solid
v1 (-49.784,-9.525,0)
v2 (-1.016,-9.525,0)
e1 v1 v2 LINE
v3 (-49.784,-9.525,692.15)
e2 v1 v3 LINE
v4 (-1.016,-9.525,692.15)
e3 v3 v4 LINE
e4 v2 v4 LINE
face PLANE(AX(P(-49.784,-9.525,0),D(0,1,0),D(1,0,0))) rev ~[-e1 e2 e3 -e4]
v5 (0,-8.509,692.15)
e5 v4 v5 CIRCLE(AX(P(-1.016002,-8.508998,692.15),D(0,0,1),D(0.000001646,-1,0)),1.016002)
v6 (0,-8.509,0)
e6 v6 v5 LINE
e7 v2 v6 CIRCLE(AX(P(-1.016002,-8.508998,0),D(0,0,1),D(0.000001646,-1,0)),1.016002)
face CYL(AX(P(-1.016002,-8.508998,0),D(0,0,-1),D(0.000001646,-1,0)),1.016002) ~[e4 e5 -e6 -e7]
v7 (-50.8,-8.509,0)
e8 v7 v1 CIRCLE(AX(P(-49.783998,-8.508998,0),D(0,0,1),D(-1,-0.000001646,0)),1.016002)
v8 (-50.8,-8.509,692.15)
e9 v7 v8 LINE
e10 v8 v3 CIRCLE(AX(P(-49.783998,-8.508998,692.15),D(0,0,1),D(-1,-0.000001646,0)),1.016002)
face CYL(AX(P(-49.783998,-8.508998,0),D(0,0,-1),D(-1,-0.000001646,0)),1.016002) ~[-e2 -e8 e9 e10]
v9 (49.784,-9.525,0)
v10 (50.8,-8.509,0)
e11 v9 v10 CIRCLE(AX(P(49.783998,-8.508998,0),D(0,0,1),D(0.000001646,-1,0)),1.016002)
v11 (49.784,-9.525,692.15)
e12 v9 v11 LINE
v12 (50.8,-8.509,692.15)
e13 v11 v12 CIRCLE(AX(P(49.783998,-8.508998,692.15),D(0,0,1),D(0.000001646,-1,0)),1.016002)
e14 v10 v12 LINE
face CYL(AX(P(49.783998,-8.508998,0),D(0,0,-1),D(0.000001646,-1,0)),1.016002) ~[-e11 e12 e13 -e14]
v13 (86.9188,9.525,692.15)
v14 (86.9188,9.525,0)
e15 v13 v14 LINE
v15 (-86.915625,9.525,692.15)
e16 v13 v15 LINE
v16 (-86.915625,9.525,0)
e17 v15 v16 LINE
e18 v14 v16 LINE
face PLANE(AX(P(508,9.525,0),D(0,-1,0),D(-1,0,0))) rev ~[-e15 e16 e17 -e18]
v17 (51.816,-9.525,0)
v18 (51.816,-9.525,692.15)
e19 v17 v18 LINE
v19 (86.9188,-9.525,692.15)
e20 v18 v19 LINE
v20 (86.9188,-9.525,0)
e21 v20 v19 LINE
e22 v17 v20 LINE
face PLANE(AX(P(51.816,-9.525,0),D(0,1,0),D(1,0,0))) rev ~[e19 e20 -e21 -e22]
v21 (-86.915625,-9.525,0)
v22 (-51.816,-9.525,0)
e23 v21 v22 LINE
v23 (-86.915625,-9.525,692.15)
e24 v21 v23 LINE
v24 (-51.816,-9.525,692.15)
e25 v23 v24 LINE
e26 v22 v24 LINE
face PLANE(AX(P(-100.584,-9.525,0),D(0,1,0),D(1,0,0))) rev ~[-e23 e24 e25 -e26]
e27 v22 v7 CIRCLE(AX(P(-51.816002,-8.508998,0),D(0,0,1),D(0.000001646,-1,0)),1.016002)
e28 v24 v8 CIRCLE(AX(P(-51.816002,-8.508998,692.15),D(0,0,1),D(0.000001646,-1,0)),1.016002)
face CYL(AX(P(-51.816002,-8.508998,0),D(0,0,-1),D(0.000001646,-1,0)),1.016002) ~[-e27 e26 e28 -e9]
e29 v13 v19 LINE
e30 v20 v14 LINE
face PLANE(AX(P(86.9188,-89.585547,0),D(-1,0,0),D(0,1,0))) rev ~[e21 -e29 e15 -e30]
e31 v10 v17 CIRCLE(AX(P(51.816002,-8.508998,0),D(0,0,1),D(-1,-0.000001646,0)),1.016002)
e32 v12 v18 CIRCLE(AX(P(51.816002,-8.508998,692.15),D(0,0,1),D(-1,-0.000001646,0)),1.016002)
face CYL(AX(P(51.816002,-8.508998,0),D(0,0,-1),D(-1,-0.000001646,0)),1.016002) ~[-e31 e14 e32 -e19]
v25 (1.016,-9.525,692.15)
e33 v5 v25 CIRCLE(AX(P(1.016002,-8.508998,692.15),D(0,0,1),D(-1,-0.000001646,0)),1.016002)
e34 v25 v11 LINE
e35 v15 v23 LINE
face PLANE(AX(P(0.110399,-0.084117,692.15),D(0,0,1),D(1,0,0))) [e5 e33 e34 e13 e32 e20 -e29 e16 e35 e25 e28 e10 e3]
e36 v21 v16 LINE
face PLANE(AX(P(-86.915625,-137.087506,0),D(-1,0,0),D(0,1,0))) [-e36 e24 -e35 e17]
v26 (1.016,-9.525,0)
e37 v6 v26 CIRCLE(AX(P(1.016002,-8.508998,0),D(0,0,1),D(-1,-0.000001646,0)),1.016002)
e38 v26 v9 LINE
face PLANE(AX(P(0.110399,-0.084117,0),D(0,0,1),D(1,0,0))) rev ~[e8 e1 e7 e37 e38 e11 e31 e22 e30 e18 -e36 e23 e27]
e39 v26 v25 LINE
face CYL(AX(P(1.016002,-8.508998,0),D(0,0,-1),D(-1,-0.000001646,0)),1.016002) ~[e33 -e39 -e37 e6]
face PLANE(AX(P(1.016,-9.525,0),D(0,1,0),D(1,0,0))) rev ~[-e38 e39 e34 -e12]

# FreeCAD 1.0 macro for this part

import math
import FreeCAD as App
import Part
import Sketcher

V = App.Vector
Q = App.Units.Quantity


def add_polygon(sketch, points):
    """Adds a closed chain of lines whose ends are joined by coincident constraints."""
    first, n = sketch.GeometryCount, len(points)
    for a, b in zip(points, points[1:] + points[:1]):
        sketch.addGeometry(Part.LineSegment(App.Vector(*a, 0), App.Vector(*b, 0)), False)
    for i in range(n):
        sketch.addConstraint(Sketcher.Constraint("Coincident", first + i, 2, first + (i + 1) % n, 1))

doc = App.newDocument("Part")
params = doc.addObject("Spreadsheet::Sheet", "Params")
for row, (alias, value) in enumerate([
    ("sketch1_width", "40 in"),
    ("sketch1_radius", "0.0400001 in"),
    ("sketch1_height", "0.75 in"),
    ("pad1_length", "27.25 in"),
    ("sketch2_width", "20 in"),
    ("pocket1_length", "45 in"),
], start=1):
    params.set(f"A{row}", alias)
    params.set(f"B{row}", "=" + value)
    params.setAlias(f"B{row}", alias)

body = doc.addObject("PartDesign::Body", "Body")

sketch1 = body.newObject("Sketcher::SketchObject", "Sketch")
sketch1.AttachmentSupport = (doc.getObject("XY_Plane"), [""])
sketch1.MapMode = "FlatFace"
sketch1.addGeometry([
    Part.LineSegment(V(458.216, -9.525, 0), V(508, -9.525, 0)),
    Part.LineSegment(V(508, -9.525, 0), V(508, 9.525, 0)),
    Part.LineSegment(V(508, 9.525, 0), V(-508, 9.525, 0)),
    Part.LineSegment(V(-508, 9.525, 0), V(-508, -9.525, 0)),
    Part.LineSegment(V(-508, -9.525, 0), V(-458.216, -9.525, 0)),
    Part.ArcOfCircle(Part.Circle(V(-458.216002, -8.508998, 0), V(0, 0, 1), 1.016002), math.radians(-89.999906), math.radians(-0.000094)),
    Part.ArcOfCircle(Part.Circle(V(-456.183998, -8.508998, 0), V(0, 0, 1), 1.016002), math.radians(-179.999906), math.radians(-90.000094)),
    Part.LineSegment(V(-456.184, -9.525, 0), V(-407.416, -9.525, 0)),
    Part.ArcOfCircle(Part.Circle(V(-407.416002, -8.508998, 0), V(0, 0, 1), 1.016002), math.radians(-89.999906), math.radians(-0.000094)),
    Part.ArcOfCircle(Part.Circle(V(-405.383998, -8.508998, 0), V(0, 0, 1), 1.016002), math.radians(-179.999906), math.radians(-90.000094)),
    Part.LineSegment(V(-405.384, -9.525, 0), V(-356.616, -9.525, 0)),
    Part.ArcOfCircle(Part.Circle(V(-356.616002, -8.508998, 0), V(0, 0, 1), 1.016002), math.radians(-89.999906), math.radians(-0.000094)),
    Part.ArcOfCircle(Part.Circle(V(-354.583998, -8.508998, 0), V(0, 0, 1), 1.016002), math.radians(-179.999906), math.radians(-90.000094)),
    Part.LineSegment(V(-354.584, -9.525, 0), V(-305.816, -9.525, 0)),
    Part.ArcOfCircle(Part.Circle(V(-305.816002, -8.508998, 0), V(0, 0, 1), 1.016002), math.radians(-89.999906), math.radians(-0.000094)),
    Part.ArcOfCircle(Part.Circle(V(-303.783998, -8.508998, 0), V(0, 0, 1), 1.016002), math.radians(-179.999906), math.radians(-90.000094)),
    Part.LineSegment(V(-303.784, -9.525, 0), V(-255.016, -9.525, 0)),
    Part.ArcOfCircle(Part.Circle(V(-255.016002, -8.508998, 0), V(0, 0, 1), 1.016002), math.radians(-89.999906), math.radians(-0.000094)),
    Part.ArcOfCircle(Part.Circle(V(-252.983998, -8.508998, 0), V(0, 0, 1), 1.016002), math.radians(-179.999906), math.radians(-90.000094)),
    Part.LineSegment(V(-252.984, -9.525, 0), V(-204.216, -9.525, 0)),
    Part.ArcOfCircle(Part.Circle(V(-204.216002, -8.508998, 0), V(0, 0, 1), 1.016002), math.radians(-89.999906), math.radians(-0.000094)),
    Part.ArcOfCircle(Part.Circle(V(-202.183998, -8.508998, 0), V(0, 0, 1), 1.016002), math.radians(-179.999906), math.radians(-90.000094)),
    Part.LineSegment(V(-202.184, -9.525, 0), V(-153.416, -9.525, 0)),
    Part.ArcOfCircle(Part.Circle(V(-153.416002, -8.508998, 0), V(0, 0, 1), 1.016002), math.radians(-89.999906), math.radians(-0.000094)),
    Part.ArcOfCircle(Part.Circle(V(-151.383998, -8.508998, 0), V(0, 0, 1), 1.016002), math.radians(-179.999906), math.radians(-90.000094)),
    Part.LineSegment(V(-151.384, -9.525, 0), V(-102.616, -9.525, 0)),
    Part.ArcOfCircle(Part.Circle(V(-102.616002, -8.508998, 0), V(0, 0, 1), 1.016002), math.radians(-89.999906), math.radians(-0.000094)),
    Part.ArcOfCircle(Part.Circle(V(-100.583998, -8.508998, 0), V(0, 0, 1), 1.016002), math.radians(-179.999906), math.radians(-90.000094)),
    Part.LineSegment(V(-100.584, -9.525, 0), V(-51.816, -9.525, 0)),
    Part.ArcOfCircle(Part.Circle(V(-51.816002, -8.508998, 0), V(0, 0, 1), 1.016002), math.radians(-89.999906), math.radians(-0.000094)),
    Part.ArcOfCircle(Part.Circle(V(-49.783998, -8.508998, 0), V(0, 0, 1), 1.016002), math.radians(-179.999906), math.radians(-90.000094)),
    Part.LineSegment(V(-49.784, -9.525, 0), V(-1.016, -9.525, 0)),
    Part.ArcOfCircle(Part.Circle(V(-1.016002, -8.508998, 0), V(0, 0, 1), 1.016002), math.radians(-89.999906), math.radians(-0.000094)),
    Part.ArcOfCircle(Part.Circle(V(1.016002, -8.508998, 0), V(0, 0, 1), 1.016002), math.radians(-179.999906), math.radians(-90.000094)),
    Part.LineSegment(V(1.016, -9.525, 0), V(49.784, -9.525, 0)),
    Part.ArcOfCircle(Part.Circle(V(49.783998, -8.508998, 0), V(0, 0, 1), 1.016002), math.radians(-89.999906), math.radians(-0.000094)),
    Part.ArcOfCircle(Part.Circle(V(51.816002, -8.508998, 0), V(0, 0, 1), 1.016002), math.radians(-179.999906), math.radians(-90.000094)),
    Part.LineSegment(V(51.816, -9.525, 0), V(100.584, -9.525, 0)),
    Part.ArcOfCircle(Part.Circle(V(100.583998, -8.508998, 0), V(0, 0, 1), 1.016002), math.radians(-89.999906), math.radians(-0.000094)),
    Part.ArcOfCircle(Part.Circle(V(102.616002, -8.508998, 0), V(0, 0, 1), 1.016002), math.radians(-179.999906), math.radians(-90.000094)),
    Part.LineSegment(V(102.616, -9.525, 0), V(151.384, -9.525, 0)),
    Part.ArcOfCircle(Part.Circle(V(151.383998, -8.508998, 0), V(0, 0, 1), 1.016002), math.radians(-89.999906), math.radians(-0.000094)),
    Part.ArcOfCircle(Part.Circle(V(153.416002, -8.508998, 0), V(0, 0, 1), 1.016002), math.radians(-179.999906), math.radians(-90.000094)),
    Part.LineSegment(V(153.416, -9.525, 0), V(202.184, -9.525, 0)),
    Part.ArcOfCircle(Part.Circle(V(202.183998, -8.508998, 0), V(0, 0, 1), 1.016002), math.radians(-89.999906), math.radians(-0.000094)),
    Part.ArcOfCircle(Part.Circle(V(204.216002, -8.508998, 0), V(0, 0, 1), 1.016002), math.radians(-179.999906), math.radians(-90.000094)),
    Part.LineSegment(V(204.216, -9.525, 0), V(252.984, -9.525, 0)),
    Part.ArcOfCircle(Part.Circle(V(252.983998, -8.508998, 0), V(0, 0, 1), 1.016002), math.radians(-89.999906), math.radians(-0.000094)),
    Part.ArcOfCircle(Part.Circle(V(255.016002, -8.508998, 0), V(0, 0, 1), 1.016002), math.radians(-179.999906), math.radians(-90.000094)),
    Part.LineSegment(V(255.016, -9.525, 0), V(303.784, -9.525, 0)),
    Part.ArcOfCircle(Part.Circle(V(303.783998, -8.508998, 0), V(0, 0, 1), 1.016002), math.radians(-89.999906), math.radians(-0.000094)),
    Part.ArcOfCircle(Part.Circle(V(305.816002, -8.508998, 0), V(0, 0, 1), 1.016002), math.radians(-179.999906), math.radians(-90.000094)),
    Part.LineSegment(V(305.816, -9.525, 0), V(354.584, -9.525, 0)),
    Part.ArcOfCircle(Part.Circle(V(354.583998, -8.508998, 0), V(0, 0, 1), 1.016002), math.radians(-89.999906), math.radians(-0.000094)),
    Part.ArcOfCircle(Part.Circle(V(356.616002, -8.508998, 0), V(0, 0, 1), 1.016002), math.radians(-179.999906), math.radians(-90.000094)),
    Part.LineSegment(V(356.616, -9.525, 0), V(405.384, -9.525, 0)),
    Part.ArcOfCircle(Part.Circle(V(405.383998, -8.508998, 0), V(0, 0, 1), 1.016002), math.radians(-89.999906), math.radians(-0.000094)),
    Part.ArcOfCircle(Part.Circle(V(407.416002, -8.508998, 0), V(0, 0, 1), 1.016002), math.radians(-179.999906), math.radians(-90.000094)),
    Part.LineSegment(V(407.416, -9.525, 0), V(456.184, -9.525, 0)),
    Part.ArcOfCircle(Part.Circle(V(456.183998, -8.508998, 0), V(0, 0, 1), 1.016002), math.radians(-89.999906), math.radians(-0.000094)),
    Part.ArcOfCircle(Part.Circle(V(458.216002, -8.508998, 0), V(0, 0, 1), 1.016002), math.radians(-179.999906), math.radians(-90.000094)),
], False)
sketch1.addConstraint([
    Sketcher.Constraint("Coincident", 0, 2, 1, 1),
    Sketcher.Constraint("Coincident", 1, 2, 2, 1),
    Sketcher.Constraint("Coincident", 2, 2, 3, 1),
    Sketcher.Constraint("Coincident", 3, 2, 4, 1),
    Sketcher.Constraint("Tangent", 4, 2, 5, 1),
    Sketcher.Constraint("Coincident", 5, 2, 6, 1),
    Sketcher.Constraint("Tangent", 6, 2, 7, 1),
    Sketcher.Constraint("Tangent", 7, 2, 8, 1),
    Sketcher.Constraint("Coincident", 8, 2, 9, 1),
    Sketcher.Constraint("Tangent", 9, 2, 10, 1),
    Sketcher.Constraint("Tangent", 10, 2, 11, 1),
    Sketcher.Constraint("Coincident", 11, 2, 12, 1),
    Sketcher.Constraint("Tangent", 12, 2, 13, 1),
    Sketcher.Constraint("Tangent", 13, 2, 14, 1),
    Sketcher.Constraint("Coincident", 14, 2, 15, 1),
    Sketcher.Constraint("Tangent", 15, 2, 16, 1),
    Sketcher.Constraint("Tangent", 16, 2, 17, 1),
    Sketcher.Constraint("Coincident", 17, 2, 18, 1),
    Sketcher.Constraint("Tangent", 18, 2, 19, 1),
    Sketcher.Constraint("Tangent", 19, 2, 20, 1),
    Sketcher.Constraint("Coincident", 20, 2, 21, 1),
    Sketcher.Constraint("Tangent", 21, 2, 22, 1),
    Sketcher.Constraint("Tangent", 22, 2, 23, 1),
    Sketcher.Constraint("Coincident", 23, 2, 24, 1),
    Sketcher.Constraint("Tangent", 24, 2, 25, 1),
    Sketcher.Constraint("Tangent", 25, 2, 26, 1),
    Sketcher.Constraint("Coincident", 26, 2, 27, 1),
    Sketcher.Constraint("Tangent", 27, 2, 28, 1),
    Sketcher.Constraint("Tangent", 28, 2, 29, 1),
    Sketcher.Constraint("Coincident", 29, 2, 30, 1),
    Sketcher.Constraint("Tangent", 30, 2, 31, 1),
    Sketcher.Constraint("Tangent", 31, 2, 32, 1),
    Sketcher.Constraint("Coincident", 32, 2, 33, 1),
    Sketcher.Constraint("Tangent", 33, 2, 34, 1),
    Sketcher.Constraint("Tangent", 34, 2, 35, 1),
    Sketcher.Constraint("Coincident", 35, 2, 36, 1),
    Sketcher.Constraint("Tangent", 36, 2, 37, 1),
    Sketcher.Constraint("Tangent", 37, 2, 38, 1),
    Sketcher.Constraint("Coincident", 38, 2, 39, 1),
    Sketcher.Constraint("Tangent", 39, 2, 40, 1),
    Sketcher.Constraint("Tangent", 40, 2, 41, 1),
    Sketcher.Constraint("Coincident", 41, 2, 42, 1),
    Sketcher.Constraint("Tangent", 42, 2, 43, 1),
    Sketcher.Constraint("Tangent", 43, 2, 44, 1),
    Sketcher.Constraint("Coincident", 44, 2, 45, 1),
    Sketcher.Constraint("Tangent", 45, 2, 46, 1),
    Sketcher.Constraint("Tangent", 46, 2, 47, 1),
    Sketcher.Constraint("Coincident", 47, 2, 48, 1),
    Sketcher.Constraint("Tangent", 48, 2, 49, 1),
    Sketcher.Constraint("Tangent", 49, 2, 50, 1),
    Sketcher.Constraint("Coincident", 50, 2, 51, 1),
    Sketcher.Constraint("Tangent", 51, 2, 52, 1),
    Sketcher.Constraint("Tangent", 52, 2, 53, 1),
    Sketcher.Constraint("Coincident", 53, 2, 54, 1),
    Sketcher.Constraint("Tangent", 54, 2, 55, 1),
    Sketcher.Constraint("Tangent", 55, 2, 56, 1),
    Sketcher.Constraint("Coincident", 56, 2, 57, 1),
    Sketcher.Constraint("Tangent", 57, 2, 58, 1),
    Sketcher.Constraint("Tangent", 58, 2, 59, 1),
    Sketcher.Constraint("Coincident", 59, 2, 60, 1),
    Sketcher.Constraint("Tangent", 60, 2, 0, 1),
    Sketcher.Constraint("Horizontal", 0),
    Sketcher.Constraint("Vertical", 1),
    Sketcher.Constraint("Horizontal", 2),
    Sketcher.Constraint("Vertical", 3),
    Sketcher.Constraint("Horizontal", 4),
    Sketcher.Constraint("Horizontal", 7),
    Sketcher.Constraint("Horizontal", 10),
    Sketcher.Constraint("Horizontal", 13),
    Sketcher.Constraint("Horizontal", 16),
    Sketcher.Constraint("Horizontal", 19),
    Sketcher.Constraint("Horizontal", 22),
    Sketcher.Constraint("Horizontal", 25),
    Sketcher.Constraint("Horizontal", 28),
    Sketcher.Constraint("Horizontal", 31),
    Sketcher.Constraint("Horizontal", 34),
    Sketcher.Constraint("Horizontal", 37),
    Sketcher.Constraint("Horizontal", 40),
    Sketcher.Constraint("Horizontal", 43),
    Sketcher.Constraint("Horizontal", 46),
    Sketcher.Constraint("Horizontal", 49),
    Sketcher.Constraint("Horizontal", 52),
    Sketcher.Constraint("Horizontal", 55),
    Sketcher.Constraint("Horizontal", 58),
    Sketcher.Constraint("Equal", 5, 6),
    Sketcher.Constraint("Equal", 6, 8),
    Sketcher.Constraint("Equal", 8, 9),
    Sketcher.Constraint("Equal", 9, 11),
    Sketcher.Constraint("Equal", 11, 12),
    Sketcher.Constraint("Equal", 12, 14),
    Sketcher.Constraint("Equal", 14, 15),
    Sketcher.Constraint("Equal", 15, 17),
    Sketcher.Constraint("Equal", 17, 18),
    Sketcher.Constraint("Equal", 18, 20),
    Sketcher.Constraint("Equal", 20, 21),
    Sketcher.Constraint("Equal", 21, 23),
    Sketcher.Constraint("Equal", 23, 24),
    Sketcher.Constraint("Equal", 24, 26),
    Sketcher.Constraint("Equal", 26, 27),
    Sketcher.Constraint("Equal", 27, 29),
    Sketcher.Constraint("Equal", 29, 30),
    Sketcher.Constraint("Equal", 30, 32),
    Sketcher.Constraint("Equal", 32, 33),
    Sketcher.Constraint("Equal", 33, 35),
    Sketcher.Constraint("Equal", 35, 36),
    Sketcher.Constraint("Equal", 36, 38),
    Sketcher.Constraint("Equal", 38, 39),
    Sketcher.Constraint("Equal", 39, 41),
    Sketcher.Constraint("Equal", 41, 42),
    Sketcher.Constraint("Equal", 42, 44),
    Sketcher.Constraint("Equal", 44, 45),
    Sketcher.Constraint("Equal", 45, 47),
    Sketcher.Constraint("Equal", 47, 48),
    Sketcher.Constraint("Equal", 48, 50),
    Sketcher.Constraint("Equal", 50, 51),
    Sketcher.Constraint("Equal", 51, 53),
    Sketcher.Constraint("Equal", 53, 54),
    Sketcher.Constraint("Equal", 54, 56),
    Sketcher.Constraint("Equal", 56, 57),
    Sketcher.Constraint("Equal", 57, 59),
    Sketcher.Constraint("Equal", 59, 60),
    Sketcher.Constraint("Symmetric", 0, 2, 2, 2, -1, 1),
    Sketcher.Constraint("Symmetric", 32, 3, 33, 3, -2),
    Sketcher.Constraint("Symmetric", 29, 3, 36, 3, -2),
    Sketcher.Constraint("Symmetric", 26, 3, 39, 3, -2),
    Sketcher.Constraint("Symmetric", 23, 3, 42, 3, -2),
    Sketcher.Constraint("Symmetric", 20, 3, 45, 3, -2),
    Sketcher.Constraint("Symmetric", 17, 3, 48, 3, -2),
    Sketcher.Constraint("Symmetric", 14, 3, 51, 3, -2),
    Sketcher.Constraint("Symmetric", 11, 3, 54, 3, -2),
    Sketcher.Constraint("Symmetric", 8, 3, 57, 3, -2),
    Sketcher.Constraint("Symmetric", 5, 3, 60, 3, -2),
    Sketcher.Constraint("Horizontal", 5, 3, 6, 3),
    Sketcher.Constraint("Horizontal", 8, 3, 9, 3),
    Sketcher.Constraint("Horizontal", 11, 3, 12, 3),
    Sketcher.Constraint("Horizontal", 14, 3, 15, 3),
    Sketcher.Constraint("Horizontal", 17, 3, 18, 3),
    Sketcher.Constraint("Horizontal", 20, 3, 21, 3),
    Sketcher.Constraint("Horizontal", 23, 3, 24, 3),
    Sketcher.Constraint("Horizontal", 26, 3, 27, 3),
    Sketcher.Constraint("Horizontal", 29, 3, 30, 3),
    Sketcher.Constraint("Horizontal", 60, 3, 5, 2),
    Sketcher.Constraint("Horizontal", 5, 2, 8, 2),
    Sketcher.Constraint("Horizontal", 8, 2, 11, 2),
    Sketcher.Constraint("Horizontal", 11, 2, 14, 2),
    Sketcher.Constraint("Horizontal", 14, 2, 17, 2),
    Sketcher.Constraint("Horizontal", 17, 2, 20, 2),
    Sketcher.Constraint("Horizontal", 20, 2, 23, 2),
    Sketcher.Constraint("Horizontal", 23, 2, 26, 2),
    Sketcher.Constraint("Horizontal", 26, 2, 29, 2),
    Sketcher.Constraint("Horizontal", 29, 2, 32, 2),
    Sketcher.Constraint("Horizontal", 32, 2, 35, 2),
    Sketcher.Constraint("Horizontal", 35, 2, 38, 2),
    Sketcher.Constraint("Horizontal", 38, 2, 41, 2),
    Sketcher.Constraint("Horizontal", 41, 2, 44, 2),
    Sketcher.Constraint("Horizontal", 44, 2, 47, 2),
    Sketcher.Constraint("Horizontal", 47, 2, 50, 2),
    Sketcher.Constraint("Horizontal", 50, 2, 53, 2),
    Sketcher.Constraint("Horizontal", 53, 2, 56, 2),
    Sketcher.Constraint("Horizontal", 56, 2, 59, 2),
    Sketcher.Constraint("Equal", 7, 10),
    Sketcher.Constraint("Equal", 10, 13),
    Sketcher.Constraint("Equal", 13, 16),
    Sketcher.Constraint("Equal", 16, 19),
    Sketcher.Constraint("Equal", 19, 22),
    Sketcher.Constraint("Equal", 22, 25),
    Sketcher.Constraint("Equal", 25, 28),
    Sketcher.Constraint("Equal", 28, 31),
    Sketcher.Constraint("DistanceX", 2, 2, 2, 1, Q("40 in")),
    Sketcher.Constraint("Radius", 5, Q("0.0400001 in")),
    Sketcher.Constraint("DistanceX", 5, 2, -1, 1, Q("18 in")),
    Sketcher.Constraint("DistanceY", 1, 1, 1, 2, Q("0.75 in")),
])
sketch1.setExpression("Constraints[168]", "Params.sketch1_width")
sketch1.setExpression("Constraints[169]", "Params.sketch1_radius")
sketch1.setExpression("Constraints[171]", "Params.sketch1_height")
pad1 = body.newObject("PartDesign::Pad", "Pad")
pad1.Profile = sketch1
pad1.setExpression("Length", "Params.pad1_length")

sketch2 = body.newObject("Sketcher::SketchObject", "Sketch001")
sketch2.AttachmentSupport = (doc.getObject("XY_Plane"), [""])
sketch2.MapMode = "FlatFace"
add_polygon(sketch2, [(86.9188, 47.642301), (86.9188, -89.585547), (594.9188, -89.585547), (594.9188, 47.642301)])
add_polygon(sketch2, [(-594.915625, 58.198292), (-594.915625, -137.087506), (-86.915625, -137.087506), (-86.915625, 58.198292)])
sketch2.addConstraint([
    Sketcher.Constraint("Vertical", 0),
    Sketcher.Constraint("Horizontal", 1),
    Sketcher.Constraint("Vertical", 2),
    Sketcher.Constraint("Horizontal", 3),
    Sketcher.Constraint("Vertical", 4),
    Sketcher.Constraint("Horizontal", 5),
    Sketcher.Constraint("Vertical", 6),
    Sketcher.Constraint("Horizontal", 7),
    Sketcher.Constraint("Equal", 3, 5),
    Sketcher.Constraint("DistanceX", 1, 1, 1, 2, Q("20 in")),
    Sketcher.Constraint("DistanceX", -1, 1, 0, 2, Q("3.422 in")),
    Sketcher.Constraint("DistanceX", 4, 2, -1, 1, Q("23.421875 in")),
    Sketcher.Constraint("DistanceY", 4, 2, 4, 1, Q("195.285798 mm")),
    Sketcher.Constraint("DistanceY", 0, 2, 0, 1, Q("137.227848 mm")),
    Sketcher.Constraint("DistanceY", -1, 1, 2, 2, Q("47.642301 mm")),
    Sketcher.Constraint("DistanceY", 4, 2, 0, 2, Q("47.501959 mm")),
])
sketch2.setExpression("Constraints[17]", "Params.sketch2_width")
pocket1 = body.newObject("PartDesign::Pocket", "Pocket")
pocket1.Profile = sketch2
pocket1.setExpression("Length", "Params.pocket1_length")
pocket1.Reversed = True

doc.recompute()
